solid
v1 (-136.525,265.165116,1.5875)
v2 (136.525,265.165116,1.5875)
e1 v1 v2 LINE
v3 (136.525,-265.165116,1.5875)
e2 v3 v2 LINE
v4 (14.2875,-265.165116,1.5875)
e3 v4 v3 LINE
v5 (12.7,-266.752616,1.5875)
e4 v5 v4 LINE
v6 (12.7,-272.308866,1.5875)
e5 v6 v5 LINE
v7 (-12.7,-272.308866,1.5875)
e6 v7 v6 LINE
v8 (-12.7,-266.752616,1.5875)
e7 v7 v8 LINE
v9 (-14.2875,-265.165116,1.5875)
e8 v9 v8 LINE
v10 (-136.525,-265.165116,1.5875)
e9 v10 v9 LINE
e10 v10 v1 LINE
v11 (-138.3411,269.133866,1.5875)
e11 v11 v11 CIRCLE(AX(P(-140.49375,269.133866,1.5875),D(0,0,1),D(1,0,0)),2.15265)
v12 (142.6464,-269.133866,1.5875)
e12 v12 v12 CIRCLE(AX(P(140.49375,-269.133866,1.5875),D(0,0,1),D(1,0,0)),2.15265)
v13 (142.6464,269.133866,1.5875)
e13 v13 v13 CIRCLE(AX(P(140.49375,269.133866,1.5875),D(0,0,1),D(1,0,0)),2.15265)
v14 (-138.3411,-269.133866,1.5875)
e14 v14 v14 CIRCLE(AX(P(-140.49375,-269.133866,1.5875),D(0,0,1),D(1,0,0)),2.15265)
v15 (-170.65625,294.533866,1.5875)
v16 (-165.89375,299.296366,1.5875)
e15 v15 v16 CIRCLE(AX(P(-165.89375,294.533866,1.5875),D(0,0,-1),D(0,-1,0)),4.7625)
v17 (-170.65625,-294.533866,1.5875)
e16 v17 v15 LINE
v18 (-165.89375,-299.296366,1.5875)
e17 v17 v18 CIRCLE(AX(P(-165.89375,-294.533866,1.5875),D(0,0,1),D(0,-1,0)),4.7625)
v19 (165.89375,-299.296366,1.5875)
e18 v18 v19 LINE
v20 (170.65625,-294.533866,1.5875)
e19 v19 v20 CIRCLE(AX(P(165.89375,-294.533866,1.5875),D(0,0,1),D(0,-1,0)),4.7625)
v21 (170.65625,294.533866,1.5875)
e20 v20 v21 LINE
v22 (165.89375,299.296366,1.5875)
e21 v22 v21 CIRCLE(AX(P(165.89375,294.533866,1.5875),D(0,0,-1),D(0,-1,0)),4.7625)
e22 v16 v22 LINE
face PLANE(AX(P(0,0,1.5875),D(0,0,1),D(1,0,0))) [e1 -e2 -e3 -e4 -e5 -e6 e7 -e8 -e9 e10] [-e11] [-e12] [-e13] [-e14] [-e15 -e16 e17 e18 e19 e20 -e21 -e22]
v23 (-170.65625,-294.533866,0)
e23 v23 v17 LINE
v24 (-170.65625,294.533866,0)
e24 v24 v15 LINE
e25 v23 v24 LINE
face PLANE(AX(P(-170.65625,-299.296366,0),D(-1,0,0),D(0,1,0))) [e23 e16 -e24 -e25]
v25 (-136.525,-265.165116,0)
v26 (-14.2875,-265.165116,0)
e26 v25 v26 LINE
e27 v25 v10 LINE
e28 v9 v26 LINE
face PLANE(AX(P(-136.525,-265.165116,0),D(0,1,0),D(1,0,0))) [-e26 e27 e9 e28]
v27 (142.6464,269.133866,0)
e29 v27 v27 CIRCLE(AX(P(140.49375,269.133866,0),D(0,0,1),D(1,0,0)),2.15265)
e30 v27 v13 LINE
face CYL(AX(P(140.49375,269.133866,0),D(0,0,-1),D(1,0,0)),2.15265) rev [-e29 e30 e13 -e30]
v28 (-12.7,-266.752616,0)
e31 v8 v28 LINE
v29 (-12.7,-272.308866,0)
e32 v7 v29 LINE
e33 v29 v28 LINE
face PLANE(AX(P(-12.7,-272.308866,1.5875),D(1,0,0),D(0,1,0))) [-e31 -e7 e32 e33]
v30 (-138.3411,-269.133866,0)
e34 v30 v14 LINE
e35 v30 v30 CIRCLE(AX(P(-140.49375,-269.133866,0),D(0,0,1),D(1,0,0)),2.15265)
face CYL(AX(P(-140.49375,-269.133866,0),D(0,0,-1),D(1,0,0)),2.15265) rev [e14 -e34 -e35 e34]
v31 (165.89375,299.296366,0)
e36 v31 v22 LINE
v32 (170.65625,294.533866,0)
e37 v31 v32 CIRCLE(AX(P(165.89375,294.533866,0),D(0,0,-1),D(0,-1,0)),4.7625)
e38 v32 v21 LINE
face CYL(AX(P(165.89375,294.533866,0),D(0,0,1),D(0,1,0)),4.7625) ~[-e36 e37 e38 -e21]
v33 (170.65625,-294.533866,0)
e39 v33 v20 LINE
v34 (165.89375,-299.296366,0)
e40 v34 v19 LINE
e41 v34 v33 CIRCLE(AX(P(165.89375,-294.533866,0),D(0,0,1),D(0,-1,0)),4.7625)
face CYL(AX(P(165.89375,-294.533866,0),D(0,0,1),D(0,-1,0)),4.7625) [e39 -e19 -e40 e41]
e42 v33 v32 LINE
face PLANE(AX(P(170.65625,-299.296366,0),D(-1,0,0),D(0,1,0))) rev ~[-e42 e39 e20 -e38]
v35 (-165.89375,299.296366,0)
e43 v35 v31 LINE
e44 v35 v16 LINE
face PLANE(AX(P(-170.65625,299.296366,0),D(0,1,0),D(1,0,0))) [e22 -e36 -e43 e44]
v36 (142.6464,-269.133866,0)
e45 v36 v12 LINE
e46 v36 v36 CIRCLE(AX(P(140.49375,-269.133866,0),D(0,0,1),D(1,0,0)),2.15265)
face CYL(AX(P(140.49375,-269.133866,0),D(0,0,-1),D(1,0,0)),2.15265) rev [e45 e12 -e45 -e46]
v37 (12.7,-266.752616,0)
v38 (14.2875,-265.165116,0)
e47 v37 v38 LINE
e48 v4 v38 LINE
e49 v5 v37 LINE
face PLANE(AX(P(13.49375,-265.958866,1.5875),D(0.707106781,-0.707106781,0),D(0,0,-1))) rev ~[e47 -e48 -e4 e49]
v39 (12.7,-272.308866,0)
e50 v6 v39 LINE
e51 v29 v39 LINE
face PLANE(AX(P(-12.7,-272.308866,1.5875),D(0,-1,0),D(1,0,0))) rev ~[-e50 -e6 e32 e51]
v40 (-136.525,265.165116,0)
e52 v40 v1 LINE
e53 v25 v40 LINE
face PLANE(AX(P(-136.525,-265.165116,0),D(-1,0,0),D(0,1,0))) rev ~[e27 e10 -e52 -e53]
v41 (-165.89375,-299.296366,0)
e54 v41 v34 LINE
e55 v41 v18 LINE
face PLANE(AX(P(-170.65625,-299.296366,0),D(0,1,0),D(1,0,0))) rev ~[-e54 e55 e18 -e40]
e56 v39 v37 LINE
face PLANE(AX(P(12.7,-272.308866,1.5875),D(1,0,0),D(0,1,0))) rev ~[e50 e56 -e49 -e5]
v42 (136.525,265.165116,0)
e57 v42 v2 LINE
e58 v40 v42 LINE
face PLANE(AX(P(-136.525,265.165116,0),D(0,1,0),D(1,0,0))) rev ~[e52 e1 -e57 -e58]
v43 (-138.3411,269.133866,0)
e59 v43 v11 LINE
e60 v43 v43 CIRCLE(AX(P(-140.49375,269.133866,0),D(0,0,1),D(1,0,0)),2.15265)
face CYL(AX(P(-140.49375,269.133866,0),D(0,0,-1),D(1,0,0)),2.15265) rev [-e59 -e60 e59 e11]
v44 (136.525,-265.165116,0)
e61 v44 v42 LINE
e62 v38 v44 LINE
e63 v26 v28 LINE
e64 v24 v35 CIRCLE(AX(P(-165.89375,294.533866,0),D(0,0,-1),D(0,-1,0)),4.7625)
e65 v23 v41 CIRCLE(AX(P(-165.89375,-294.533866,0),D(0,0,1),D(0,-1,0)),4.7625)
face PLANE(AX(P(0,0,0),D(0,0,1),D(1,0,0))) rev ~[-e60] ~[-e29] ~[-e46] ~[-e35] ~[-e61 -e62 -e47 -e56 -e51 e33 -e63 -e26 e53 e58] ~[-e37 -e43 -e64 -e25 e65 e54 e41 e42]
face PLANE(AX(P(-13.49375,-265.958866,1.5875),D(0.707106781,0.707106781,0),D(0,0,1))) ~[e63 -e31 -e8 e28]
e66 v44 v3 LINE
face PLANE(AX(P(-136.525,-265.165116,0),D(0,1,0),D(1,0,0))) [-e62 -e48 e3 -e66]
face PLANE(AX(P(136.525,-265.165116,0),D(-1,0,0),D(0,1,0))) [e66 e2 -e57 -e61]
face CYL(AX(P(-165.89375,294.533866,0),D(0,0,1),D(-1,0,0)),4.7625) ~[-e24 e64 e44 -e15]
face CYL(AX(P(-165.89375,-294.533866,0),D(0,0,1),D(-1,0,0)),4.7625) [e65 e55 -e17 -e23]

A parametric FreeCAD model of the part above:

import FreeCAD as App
import Part
import Sketcher
Q = App.Units.Quantity


def edges_at(feature, points):
    """Names of the edges that pass closest to the given points."""
    edges = feature.Shape.Edges
    near = lambda p: min(range(len(edges)), key=lambda i: edges[i].distToShape(Part.Vertex(*p))[0])
    return sorted({f"Edge{near(p) + 1}" for p in points})


def add_polygon(sketch, points):
    """Adds a closed chain of lines whose ends are joined by coincident constraints."""
    first, n = sketch.GeometryCount, len(points)
    for a, b in zip(points, points[1:] + points[:1]):
        sketch.addGeometry(Part.LineSegment(App.Vector(*a, 0), App.Vector(*b, 0)), False)
    for i in range(n):
        sketch.addConstraint(Sketcher.Constraint("Coincident", first + i, 2, first + (i + 1) % n, 1))

doc = App.newDocument("Part")
body = doc.addObject("PartDesign::Body", "Body")

# Sketch on XY plane
sketch1 = doc.addObject("Sketcher::SketchObject", "Sketch")
body.addObject(sketch1)
sketch1.AttachmentSupport = (doc.XY_Plane, [""])
sketch1.MapMode = "FlatFace"
add_polygon(sketch1, [(-170.65625, 299.296366), (-170.65625, -299.296366), (170.65625, -299.296366), (170.65625, 299.296366)])  # lines 0-3
sketch1.addGeometry(Part.Circle(App.Vector(-140.49375, -269.133866, 0), App.Vector(0, 0, 1), 2.15265), False)  # 4
sketch1.addGeometry(Part.Circle(App.Vector(140.49375, -269.133866, 0), App.Vector(0, 0, 1), 2.15265), False)  # 5
sketch1.addGeometry(Part.Circle(App.Vector(-140.49375, 269.133866, 0), App.Vector(0, 0, 1), 2.15265), False)  # 6
add_polygon(sketch1, [(136.525, -265.165116), (-136.525, -265.165116), (-136.525, 265.165116), (136.525, 265.165116)])  # lines 7-10
sketch1.addGeometry(Part.Circle(App.Vector(140.49375, 269.133866, 0), App.Vector(0, 0, 1), 2.15265), False)  # 11
sketch1.addConstraint(Sketcher.Constraint("Vertical", 0))
sketch1.addConstraint(Sketcher.Constraint("Horizontal", 1))
sketch1.addConstraint(Sketcher.Constraint("Vertical", 2))
sketch1.addConstraint(Sketcher.Constraint("Horizontal", 3))
sketch1.addConstraint(Sketcher.Constraint("Horizontal", 7))
sketch1.addConstraint(Sketcher.Constraint("Vertical", 8))
sketch1.addConstraint(Sketcher.Constraint("Horizontal", 9))
sketch1.addConstraint(Sketcher.Constraint("Vertical", 10))
sketch1.addConstraint(Sketcher.Constraint("Equal", 4, 5))
sketch1.addConstraint(Sketcher.Constraint("Equal", 5, 6))
sketch1.addConstraint(Sketcher.Constraint("Equal", 6, 11))
sketch1.addConstraint(Sketcher.Constraint("Symmetric", 5, 3, 6, 3, -1, 1))
sketch1.addConstraint(Sketcher.Constraint("Symmetric", 4, 3, 11, 3, -1, 1))
sketch1.addConstraint(Sketcher.Constraint("Symmetric", 0, 2, 2, 2, -1, 1))
sketch1.addConstraint(Sketcher.Constraint("Symmetric", 7, 2, 9, 2, -1, 1))
sketch1.addConstraint(Sketcher.Constraint("Symmetric", 4, 3, 5, 3, -2))
sketch1.addConstraint(Sketcher.Constraint("Diameter", 4, Q("0.1695 in")))
sketch1.addConstraint(Sketcher.Constraint("DistanceX", 7, 2, 7, 1, Q("10.75 in")))
sketch1.addConstraint(Sketcher.Constraint("DistanceX", 1, 1, 1, 2, Q("13.4375 in")))
sketch1.addConstraint(Sketcher.Constraint("DistanceX", 0, 2, 5, 3, Q("12.25 in")))
sketch1.addConstraint(Sketcher.Constraint("DistanceY", 0, 2, 4, 3, Q("1.1875 in")))
sketch1.addConstraint(Sketcher.Constraint("DistanceY", 4, 3, 7, 2, Q("0.15625 in")))
sketch1.addConstraint(Sketcher.Constraint("DistanceY", 0, 2, 0, 1, Q("598.592732 mm")))
pad1 = doc.addObject("PartDesign::Pad", "Pad")
body.addObject(pad1)
pad1.Profile = sketch1
pad1.Length = Q("0.0625 in")
doc.recompute()

fillet = doc.addObject("PartDesign::Fillet", "Fillet")
body.addObject(fillet)
fillet.Base = (pad1, edges_at(pad1, [
    (-170.656, 299.296, 0.794),
    (170.656, 299.296, 0.794),
    (170.656, -299.296, 0.794),
    (-170.656, -299.296, 0.794),
]))
fillet.Radius = Q("0.1875 in")

# Sketch on XY plane
sketch2 = doc.addObject("Sketcher::SketchObject", "Sketch001")
body.addObject(sketch2)
sketch2.AttachmentSupport = (doc.XY_Plane, [""])
sketch2.MapMode = "FlatFace"
sketch2.AttachmentOffset = App.Placement(App.Vector(0, 0, 0.0625 * 25.4), App.Rotation())
add_polygon(sketch2, [(-12.7, -265.165116), (-12.7, -272.308866), (12.7, -272.308866), (12.7, -265.165116)])  # lines 0-3
sketch2.addConstraint(Sketcher.Constraint("Vertical", 0))
sketch2.addConstraint(Sketcher.Constraint("Horizontal", 1))
sketch2.addConstraint(Sketcher.Constraint("Vertical", 2))
sketch2.addConstraint(Sketcher.Constraint("Horizontal", 3))
sketch2.addConstraint(Sketcher.Constraint("DistanceX", 1, 1, 1, 2, Q("1 in")))
sketch2.addConstraint(Sketcher.Constraint("DistanceX", 0, 2, -1, 1, Q("0.5 in")))
sketch2.addConstraint(Sketcher.Constraint("DistanceY", 0, 2, 0, 1, Q("0.28125 in")))
sketch2.addConstraint(Sketcher.Constraint("DistanceY", 0, 2, -1, 1, Q("272.308866 mm")))
pocket1 = doc.addObject("PartDesign::Pocket", "Pocket")
body.addObject(pocket1)
pocket1.Profile = sketch2
pocket1.Type = "ThroughAll"
doc.recompute()

chamfer = doc.addObject("PartDesign::Chamfer", "Chamfer")
body.addObject(chamfer)
chamfer.Base = (pocket1, edges_at(pocket1, [(12.7, -265.165, 0.794), (-12.7, -265.165, 0.794)]))
chamfer.Size = Q("0.0625 in")

doc.recompute()
